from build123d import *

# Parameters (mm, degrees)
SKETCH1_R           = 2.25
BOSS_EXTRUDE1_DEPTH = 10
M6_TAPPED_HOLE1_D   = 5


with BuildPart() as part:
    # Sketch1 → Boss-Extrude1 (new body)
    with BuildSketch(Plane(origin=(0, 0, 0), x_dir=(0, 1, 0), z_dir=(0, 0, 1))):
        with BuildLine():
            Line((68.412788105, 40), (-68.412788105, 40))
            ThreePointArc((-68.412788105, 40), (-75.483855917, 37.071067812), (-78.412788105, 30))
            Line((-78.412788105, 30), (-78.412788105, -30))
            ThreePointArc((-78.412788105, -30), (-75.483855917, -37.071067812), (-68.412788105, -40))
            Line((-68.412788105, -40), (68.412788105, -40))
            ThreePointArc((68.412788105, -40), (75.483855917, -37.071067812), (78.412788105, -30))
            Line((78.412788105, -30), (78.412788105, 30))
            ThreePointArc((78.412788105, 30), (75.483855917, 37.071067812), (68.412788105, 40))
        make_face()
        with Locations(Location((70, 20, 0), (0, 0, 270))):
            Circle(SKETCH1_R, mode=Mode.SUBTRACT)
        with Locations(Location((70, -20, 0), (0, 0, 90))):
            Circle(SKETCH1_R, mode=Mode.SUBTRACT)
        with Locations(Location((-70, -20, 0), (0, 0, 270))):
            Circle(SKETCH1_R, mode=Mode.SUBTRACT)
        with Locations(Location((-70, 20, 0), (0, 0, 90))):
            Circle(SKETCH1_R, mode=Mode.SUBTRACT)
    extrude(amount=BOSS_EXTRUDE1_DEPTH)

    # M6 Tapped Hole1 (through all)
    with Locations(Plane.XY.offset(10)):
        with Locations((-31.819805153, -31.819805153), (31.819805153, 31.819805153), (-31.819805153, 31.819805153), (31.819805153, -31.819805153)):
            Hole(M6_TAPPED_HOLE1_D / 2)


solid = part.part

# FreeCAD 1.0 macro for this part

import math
import FreeCAD as App
import Part
import Sketcher

V = App.Vector

doc = App.newDocument("Part")
body = doc.addObject("PartDesign::Body", "Body")

# Sketch on XY plane
sketch1 = body.newObject("Sketcher::SketchObject", "Sketch")
sketch1.AttachmentSupport = (doc.getObject("XY_Plane"), [""])
sketch1.MapMode = "FlatFace"
sketch1.addGeometry([
    Part.LineSegment(V(-40, 68.4, 0), V(-40, -68.4, 0)),  # 0
    Part.ArcOfCircle(Part.Circle(V(-30, -68.4, 0), V(0, 0, 1), 10), math.radians(180), math.radians(270)),  # 1
    Part.LineSegment(V(-30, -78.4, 0), V(30, -78.4, 0)),  # 2
    Part.ArcOfCircle(Part.Circle(V(30, -68.4, 0), V(0, 0, 1), 10), math.radians(-90), math.radians(0)),  # 3
    Part.LineSegment(V(40, -68.4, 0), V(40, 68.4, 0)),  # 4
    Part.ArcOfCircle(Part.Circle(V(30, 68.4, 0), V(0, 0, 1), 10), math.radians(0), math.radians(90)),  # 5
    Part.LineSegment(V(30, 78.4, 0), V(-30, 78.4, 0)),  # 6
    Part.ArcOfCircle(Part.Circle(V(-30, 68.4, 0), V(0, 0, 1), 10), math.radians(90), math.radians(180)),  # 7
    Part.Circle(V(20, -70, 0), V(0, 0, 1), 2.2),  # 8
    Part.Circle(V(20, 70, 0), V(0, 0, 1), 2.2),  # 9
    Part.Circle(V(-20, -70, 0), V(0, 0, 1), 2.2),  # 10
    Part.Circle(V(-20, 70, 0), V(0, 0, 1), 2.2),  # 11
], False)
sketch1.addConstraint([
    Sketcher.Constraint("Tangent", 0, 2, 1, 1),
    Sketcher.Constraint("Tangent", 1, 2, 2, 1),
    Sketcher.Constraint("Tangent", 2, 2, 3, 1),
    Sketcher.Constraint("Tangent", 3, 2, 4, 1),
    Sketcher.Constraint("Tangent", 4, 2, 5, 1),
    Sketcher.Constraint("Tangent", 5, 2, 6, 1),
    Sketcher.Constraint("Tangent", 6, 2, 7, 1),
    Sketcher.Constraint("Tangent", 7, 2, 0, 1),
    Sketcher.Constraint("Vertical", 0),
    Sketcher.Constraint("Horizontal", 2),
    Sketcher.Constraint("Vertical", 4),
    Sketcher.Constraint("Horizontal", 6),
    Sketcher.Constraint("Equal", 1, 3),
    Sketcher.Constraint("Equal", 3, 5),
    Sketcher.Constraint("Equal", 5, 7),
    Sketcher.Constraint("Equal", 8, 9),
    Sketcher.Constraint("Equal", 9, 10),
    Sketcher.Constraint("Equal", 10, 11),
    Sketcher.Constraint("Symmetric", 1, 3, 5, 3, -1, 1),
    Sketcher.Constraint("Symmetric", 9, 3, 10, 3, -1, 1),
    Sketcher.Constraint("Symmetric", 8, 3, 11, 3, -1, 1),
    Sketcher.Constraint("Symmetric", 8, 3, 10, 3, -2),
    Sketcher.Constraint("Radius", 1, 10.0),
    Sketcher.Constraint("Diameter", 8, 4.5),
    Sketcher.Constraint("DistanceX", 2, 1, 2, 2, 60.0),
    Sketcher.Constraint("DistanceX", -1, 1, 8, 3, 20.0),
    Sketcher.Constraint("DistanceY", 8, 3, -1, 1, 70.0),
    Sketcher.Constraint("DistanceY", 0, 2, 0, 1, 136.825576),
])
pad1 = body.newObject("PartDesign::Pad", "Pad")
pad1.Profile = sketch1
pad1.Length = 10

# Sketch on XY plane
sketch2 = body.newObject("Sketcher::SketchObject", "Sketch001")
sketch2.AttachmentSupport = (doc.getObject("XY_Plane"), [""])
sketch2.MapMode = "FlatFace"
sketch2.AttachmentOffset = App.Placement(V(0, 0, 10), App.Rotation())
sketch2.addGeometry([
    Part.Circle(V(-31.8, -31.8, 0), V(0, 0, 1), 2.5),
    Part.Circle(V(31.8, 31.8, 0), V(0, 0, 1), 2.5),
    Part.Circle(V(-31.8, 31.8, 0), V(0, 0, 1), 2.5),
    Part.Circle(V(31.8, -31.8, 0), V(0, 0, 1), 2.5),
], False)
sketch2.addConstraint([
    Sketcher.Constraint("Equal", 0, 1),
    Sketcher.Constraint("Equal", 1, 2),
    Sketcher.Constraint("Equal", 2, 3),
    Sketcher.Constraint("Symmetric", 0, 3, 1, 3, -1, 1),
    Sketcher.Constraint("Symmetric", 2, 3, 3, 3, -1, 1),
    Sketcher.Constraint("Symmetric", 1, 3, 2, 3, -2),
    Sketcher.Constraint("Diameter", 0, 5.0),
    Sketcher.Constraint("DistanceX", 0, 3, 1, 3, 63.63961),
    Sketcher.Constraint("DistanceY", 0, 3, 1, 3, 63.63961),
])
doc.recompute()
hole = body.newObject("PartDesign::Hole", "Hole")
hole.Profile = sketch2
hole.ThreadType = "None"
hole.Diameter = 5
hole.DepthType = "ThroughAll"

doc.recompute()
